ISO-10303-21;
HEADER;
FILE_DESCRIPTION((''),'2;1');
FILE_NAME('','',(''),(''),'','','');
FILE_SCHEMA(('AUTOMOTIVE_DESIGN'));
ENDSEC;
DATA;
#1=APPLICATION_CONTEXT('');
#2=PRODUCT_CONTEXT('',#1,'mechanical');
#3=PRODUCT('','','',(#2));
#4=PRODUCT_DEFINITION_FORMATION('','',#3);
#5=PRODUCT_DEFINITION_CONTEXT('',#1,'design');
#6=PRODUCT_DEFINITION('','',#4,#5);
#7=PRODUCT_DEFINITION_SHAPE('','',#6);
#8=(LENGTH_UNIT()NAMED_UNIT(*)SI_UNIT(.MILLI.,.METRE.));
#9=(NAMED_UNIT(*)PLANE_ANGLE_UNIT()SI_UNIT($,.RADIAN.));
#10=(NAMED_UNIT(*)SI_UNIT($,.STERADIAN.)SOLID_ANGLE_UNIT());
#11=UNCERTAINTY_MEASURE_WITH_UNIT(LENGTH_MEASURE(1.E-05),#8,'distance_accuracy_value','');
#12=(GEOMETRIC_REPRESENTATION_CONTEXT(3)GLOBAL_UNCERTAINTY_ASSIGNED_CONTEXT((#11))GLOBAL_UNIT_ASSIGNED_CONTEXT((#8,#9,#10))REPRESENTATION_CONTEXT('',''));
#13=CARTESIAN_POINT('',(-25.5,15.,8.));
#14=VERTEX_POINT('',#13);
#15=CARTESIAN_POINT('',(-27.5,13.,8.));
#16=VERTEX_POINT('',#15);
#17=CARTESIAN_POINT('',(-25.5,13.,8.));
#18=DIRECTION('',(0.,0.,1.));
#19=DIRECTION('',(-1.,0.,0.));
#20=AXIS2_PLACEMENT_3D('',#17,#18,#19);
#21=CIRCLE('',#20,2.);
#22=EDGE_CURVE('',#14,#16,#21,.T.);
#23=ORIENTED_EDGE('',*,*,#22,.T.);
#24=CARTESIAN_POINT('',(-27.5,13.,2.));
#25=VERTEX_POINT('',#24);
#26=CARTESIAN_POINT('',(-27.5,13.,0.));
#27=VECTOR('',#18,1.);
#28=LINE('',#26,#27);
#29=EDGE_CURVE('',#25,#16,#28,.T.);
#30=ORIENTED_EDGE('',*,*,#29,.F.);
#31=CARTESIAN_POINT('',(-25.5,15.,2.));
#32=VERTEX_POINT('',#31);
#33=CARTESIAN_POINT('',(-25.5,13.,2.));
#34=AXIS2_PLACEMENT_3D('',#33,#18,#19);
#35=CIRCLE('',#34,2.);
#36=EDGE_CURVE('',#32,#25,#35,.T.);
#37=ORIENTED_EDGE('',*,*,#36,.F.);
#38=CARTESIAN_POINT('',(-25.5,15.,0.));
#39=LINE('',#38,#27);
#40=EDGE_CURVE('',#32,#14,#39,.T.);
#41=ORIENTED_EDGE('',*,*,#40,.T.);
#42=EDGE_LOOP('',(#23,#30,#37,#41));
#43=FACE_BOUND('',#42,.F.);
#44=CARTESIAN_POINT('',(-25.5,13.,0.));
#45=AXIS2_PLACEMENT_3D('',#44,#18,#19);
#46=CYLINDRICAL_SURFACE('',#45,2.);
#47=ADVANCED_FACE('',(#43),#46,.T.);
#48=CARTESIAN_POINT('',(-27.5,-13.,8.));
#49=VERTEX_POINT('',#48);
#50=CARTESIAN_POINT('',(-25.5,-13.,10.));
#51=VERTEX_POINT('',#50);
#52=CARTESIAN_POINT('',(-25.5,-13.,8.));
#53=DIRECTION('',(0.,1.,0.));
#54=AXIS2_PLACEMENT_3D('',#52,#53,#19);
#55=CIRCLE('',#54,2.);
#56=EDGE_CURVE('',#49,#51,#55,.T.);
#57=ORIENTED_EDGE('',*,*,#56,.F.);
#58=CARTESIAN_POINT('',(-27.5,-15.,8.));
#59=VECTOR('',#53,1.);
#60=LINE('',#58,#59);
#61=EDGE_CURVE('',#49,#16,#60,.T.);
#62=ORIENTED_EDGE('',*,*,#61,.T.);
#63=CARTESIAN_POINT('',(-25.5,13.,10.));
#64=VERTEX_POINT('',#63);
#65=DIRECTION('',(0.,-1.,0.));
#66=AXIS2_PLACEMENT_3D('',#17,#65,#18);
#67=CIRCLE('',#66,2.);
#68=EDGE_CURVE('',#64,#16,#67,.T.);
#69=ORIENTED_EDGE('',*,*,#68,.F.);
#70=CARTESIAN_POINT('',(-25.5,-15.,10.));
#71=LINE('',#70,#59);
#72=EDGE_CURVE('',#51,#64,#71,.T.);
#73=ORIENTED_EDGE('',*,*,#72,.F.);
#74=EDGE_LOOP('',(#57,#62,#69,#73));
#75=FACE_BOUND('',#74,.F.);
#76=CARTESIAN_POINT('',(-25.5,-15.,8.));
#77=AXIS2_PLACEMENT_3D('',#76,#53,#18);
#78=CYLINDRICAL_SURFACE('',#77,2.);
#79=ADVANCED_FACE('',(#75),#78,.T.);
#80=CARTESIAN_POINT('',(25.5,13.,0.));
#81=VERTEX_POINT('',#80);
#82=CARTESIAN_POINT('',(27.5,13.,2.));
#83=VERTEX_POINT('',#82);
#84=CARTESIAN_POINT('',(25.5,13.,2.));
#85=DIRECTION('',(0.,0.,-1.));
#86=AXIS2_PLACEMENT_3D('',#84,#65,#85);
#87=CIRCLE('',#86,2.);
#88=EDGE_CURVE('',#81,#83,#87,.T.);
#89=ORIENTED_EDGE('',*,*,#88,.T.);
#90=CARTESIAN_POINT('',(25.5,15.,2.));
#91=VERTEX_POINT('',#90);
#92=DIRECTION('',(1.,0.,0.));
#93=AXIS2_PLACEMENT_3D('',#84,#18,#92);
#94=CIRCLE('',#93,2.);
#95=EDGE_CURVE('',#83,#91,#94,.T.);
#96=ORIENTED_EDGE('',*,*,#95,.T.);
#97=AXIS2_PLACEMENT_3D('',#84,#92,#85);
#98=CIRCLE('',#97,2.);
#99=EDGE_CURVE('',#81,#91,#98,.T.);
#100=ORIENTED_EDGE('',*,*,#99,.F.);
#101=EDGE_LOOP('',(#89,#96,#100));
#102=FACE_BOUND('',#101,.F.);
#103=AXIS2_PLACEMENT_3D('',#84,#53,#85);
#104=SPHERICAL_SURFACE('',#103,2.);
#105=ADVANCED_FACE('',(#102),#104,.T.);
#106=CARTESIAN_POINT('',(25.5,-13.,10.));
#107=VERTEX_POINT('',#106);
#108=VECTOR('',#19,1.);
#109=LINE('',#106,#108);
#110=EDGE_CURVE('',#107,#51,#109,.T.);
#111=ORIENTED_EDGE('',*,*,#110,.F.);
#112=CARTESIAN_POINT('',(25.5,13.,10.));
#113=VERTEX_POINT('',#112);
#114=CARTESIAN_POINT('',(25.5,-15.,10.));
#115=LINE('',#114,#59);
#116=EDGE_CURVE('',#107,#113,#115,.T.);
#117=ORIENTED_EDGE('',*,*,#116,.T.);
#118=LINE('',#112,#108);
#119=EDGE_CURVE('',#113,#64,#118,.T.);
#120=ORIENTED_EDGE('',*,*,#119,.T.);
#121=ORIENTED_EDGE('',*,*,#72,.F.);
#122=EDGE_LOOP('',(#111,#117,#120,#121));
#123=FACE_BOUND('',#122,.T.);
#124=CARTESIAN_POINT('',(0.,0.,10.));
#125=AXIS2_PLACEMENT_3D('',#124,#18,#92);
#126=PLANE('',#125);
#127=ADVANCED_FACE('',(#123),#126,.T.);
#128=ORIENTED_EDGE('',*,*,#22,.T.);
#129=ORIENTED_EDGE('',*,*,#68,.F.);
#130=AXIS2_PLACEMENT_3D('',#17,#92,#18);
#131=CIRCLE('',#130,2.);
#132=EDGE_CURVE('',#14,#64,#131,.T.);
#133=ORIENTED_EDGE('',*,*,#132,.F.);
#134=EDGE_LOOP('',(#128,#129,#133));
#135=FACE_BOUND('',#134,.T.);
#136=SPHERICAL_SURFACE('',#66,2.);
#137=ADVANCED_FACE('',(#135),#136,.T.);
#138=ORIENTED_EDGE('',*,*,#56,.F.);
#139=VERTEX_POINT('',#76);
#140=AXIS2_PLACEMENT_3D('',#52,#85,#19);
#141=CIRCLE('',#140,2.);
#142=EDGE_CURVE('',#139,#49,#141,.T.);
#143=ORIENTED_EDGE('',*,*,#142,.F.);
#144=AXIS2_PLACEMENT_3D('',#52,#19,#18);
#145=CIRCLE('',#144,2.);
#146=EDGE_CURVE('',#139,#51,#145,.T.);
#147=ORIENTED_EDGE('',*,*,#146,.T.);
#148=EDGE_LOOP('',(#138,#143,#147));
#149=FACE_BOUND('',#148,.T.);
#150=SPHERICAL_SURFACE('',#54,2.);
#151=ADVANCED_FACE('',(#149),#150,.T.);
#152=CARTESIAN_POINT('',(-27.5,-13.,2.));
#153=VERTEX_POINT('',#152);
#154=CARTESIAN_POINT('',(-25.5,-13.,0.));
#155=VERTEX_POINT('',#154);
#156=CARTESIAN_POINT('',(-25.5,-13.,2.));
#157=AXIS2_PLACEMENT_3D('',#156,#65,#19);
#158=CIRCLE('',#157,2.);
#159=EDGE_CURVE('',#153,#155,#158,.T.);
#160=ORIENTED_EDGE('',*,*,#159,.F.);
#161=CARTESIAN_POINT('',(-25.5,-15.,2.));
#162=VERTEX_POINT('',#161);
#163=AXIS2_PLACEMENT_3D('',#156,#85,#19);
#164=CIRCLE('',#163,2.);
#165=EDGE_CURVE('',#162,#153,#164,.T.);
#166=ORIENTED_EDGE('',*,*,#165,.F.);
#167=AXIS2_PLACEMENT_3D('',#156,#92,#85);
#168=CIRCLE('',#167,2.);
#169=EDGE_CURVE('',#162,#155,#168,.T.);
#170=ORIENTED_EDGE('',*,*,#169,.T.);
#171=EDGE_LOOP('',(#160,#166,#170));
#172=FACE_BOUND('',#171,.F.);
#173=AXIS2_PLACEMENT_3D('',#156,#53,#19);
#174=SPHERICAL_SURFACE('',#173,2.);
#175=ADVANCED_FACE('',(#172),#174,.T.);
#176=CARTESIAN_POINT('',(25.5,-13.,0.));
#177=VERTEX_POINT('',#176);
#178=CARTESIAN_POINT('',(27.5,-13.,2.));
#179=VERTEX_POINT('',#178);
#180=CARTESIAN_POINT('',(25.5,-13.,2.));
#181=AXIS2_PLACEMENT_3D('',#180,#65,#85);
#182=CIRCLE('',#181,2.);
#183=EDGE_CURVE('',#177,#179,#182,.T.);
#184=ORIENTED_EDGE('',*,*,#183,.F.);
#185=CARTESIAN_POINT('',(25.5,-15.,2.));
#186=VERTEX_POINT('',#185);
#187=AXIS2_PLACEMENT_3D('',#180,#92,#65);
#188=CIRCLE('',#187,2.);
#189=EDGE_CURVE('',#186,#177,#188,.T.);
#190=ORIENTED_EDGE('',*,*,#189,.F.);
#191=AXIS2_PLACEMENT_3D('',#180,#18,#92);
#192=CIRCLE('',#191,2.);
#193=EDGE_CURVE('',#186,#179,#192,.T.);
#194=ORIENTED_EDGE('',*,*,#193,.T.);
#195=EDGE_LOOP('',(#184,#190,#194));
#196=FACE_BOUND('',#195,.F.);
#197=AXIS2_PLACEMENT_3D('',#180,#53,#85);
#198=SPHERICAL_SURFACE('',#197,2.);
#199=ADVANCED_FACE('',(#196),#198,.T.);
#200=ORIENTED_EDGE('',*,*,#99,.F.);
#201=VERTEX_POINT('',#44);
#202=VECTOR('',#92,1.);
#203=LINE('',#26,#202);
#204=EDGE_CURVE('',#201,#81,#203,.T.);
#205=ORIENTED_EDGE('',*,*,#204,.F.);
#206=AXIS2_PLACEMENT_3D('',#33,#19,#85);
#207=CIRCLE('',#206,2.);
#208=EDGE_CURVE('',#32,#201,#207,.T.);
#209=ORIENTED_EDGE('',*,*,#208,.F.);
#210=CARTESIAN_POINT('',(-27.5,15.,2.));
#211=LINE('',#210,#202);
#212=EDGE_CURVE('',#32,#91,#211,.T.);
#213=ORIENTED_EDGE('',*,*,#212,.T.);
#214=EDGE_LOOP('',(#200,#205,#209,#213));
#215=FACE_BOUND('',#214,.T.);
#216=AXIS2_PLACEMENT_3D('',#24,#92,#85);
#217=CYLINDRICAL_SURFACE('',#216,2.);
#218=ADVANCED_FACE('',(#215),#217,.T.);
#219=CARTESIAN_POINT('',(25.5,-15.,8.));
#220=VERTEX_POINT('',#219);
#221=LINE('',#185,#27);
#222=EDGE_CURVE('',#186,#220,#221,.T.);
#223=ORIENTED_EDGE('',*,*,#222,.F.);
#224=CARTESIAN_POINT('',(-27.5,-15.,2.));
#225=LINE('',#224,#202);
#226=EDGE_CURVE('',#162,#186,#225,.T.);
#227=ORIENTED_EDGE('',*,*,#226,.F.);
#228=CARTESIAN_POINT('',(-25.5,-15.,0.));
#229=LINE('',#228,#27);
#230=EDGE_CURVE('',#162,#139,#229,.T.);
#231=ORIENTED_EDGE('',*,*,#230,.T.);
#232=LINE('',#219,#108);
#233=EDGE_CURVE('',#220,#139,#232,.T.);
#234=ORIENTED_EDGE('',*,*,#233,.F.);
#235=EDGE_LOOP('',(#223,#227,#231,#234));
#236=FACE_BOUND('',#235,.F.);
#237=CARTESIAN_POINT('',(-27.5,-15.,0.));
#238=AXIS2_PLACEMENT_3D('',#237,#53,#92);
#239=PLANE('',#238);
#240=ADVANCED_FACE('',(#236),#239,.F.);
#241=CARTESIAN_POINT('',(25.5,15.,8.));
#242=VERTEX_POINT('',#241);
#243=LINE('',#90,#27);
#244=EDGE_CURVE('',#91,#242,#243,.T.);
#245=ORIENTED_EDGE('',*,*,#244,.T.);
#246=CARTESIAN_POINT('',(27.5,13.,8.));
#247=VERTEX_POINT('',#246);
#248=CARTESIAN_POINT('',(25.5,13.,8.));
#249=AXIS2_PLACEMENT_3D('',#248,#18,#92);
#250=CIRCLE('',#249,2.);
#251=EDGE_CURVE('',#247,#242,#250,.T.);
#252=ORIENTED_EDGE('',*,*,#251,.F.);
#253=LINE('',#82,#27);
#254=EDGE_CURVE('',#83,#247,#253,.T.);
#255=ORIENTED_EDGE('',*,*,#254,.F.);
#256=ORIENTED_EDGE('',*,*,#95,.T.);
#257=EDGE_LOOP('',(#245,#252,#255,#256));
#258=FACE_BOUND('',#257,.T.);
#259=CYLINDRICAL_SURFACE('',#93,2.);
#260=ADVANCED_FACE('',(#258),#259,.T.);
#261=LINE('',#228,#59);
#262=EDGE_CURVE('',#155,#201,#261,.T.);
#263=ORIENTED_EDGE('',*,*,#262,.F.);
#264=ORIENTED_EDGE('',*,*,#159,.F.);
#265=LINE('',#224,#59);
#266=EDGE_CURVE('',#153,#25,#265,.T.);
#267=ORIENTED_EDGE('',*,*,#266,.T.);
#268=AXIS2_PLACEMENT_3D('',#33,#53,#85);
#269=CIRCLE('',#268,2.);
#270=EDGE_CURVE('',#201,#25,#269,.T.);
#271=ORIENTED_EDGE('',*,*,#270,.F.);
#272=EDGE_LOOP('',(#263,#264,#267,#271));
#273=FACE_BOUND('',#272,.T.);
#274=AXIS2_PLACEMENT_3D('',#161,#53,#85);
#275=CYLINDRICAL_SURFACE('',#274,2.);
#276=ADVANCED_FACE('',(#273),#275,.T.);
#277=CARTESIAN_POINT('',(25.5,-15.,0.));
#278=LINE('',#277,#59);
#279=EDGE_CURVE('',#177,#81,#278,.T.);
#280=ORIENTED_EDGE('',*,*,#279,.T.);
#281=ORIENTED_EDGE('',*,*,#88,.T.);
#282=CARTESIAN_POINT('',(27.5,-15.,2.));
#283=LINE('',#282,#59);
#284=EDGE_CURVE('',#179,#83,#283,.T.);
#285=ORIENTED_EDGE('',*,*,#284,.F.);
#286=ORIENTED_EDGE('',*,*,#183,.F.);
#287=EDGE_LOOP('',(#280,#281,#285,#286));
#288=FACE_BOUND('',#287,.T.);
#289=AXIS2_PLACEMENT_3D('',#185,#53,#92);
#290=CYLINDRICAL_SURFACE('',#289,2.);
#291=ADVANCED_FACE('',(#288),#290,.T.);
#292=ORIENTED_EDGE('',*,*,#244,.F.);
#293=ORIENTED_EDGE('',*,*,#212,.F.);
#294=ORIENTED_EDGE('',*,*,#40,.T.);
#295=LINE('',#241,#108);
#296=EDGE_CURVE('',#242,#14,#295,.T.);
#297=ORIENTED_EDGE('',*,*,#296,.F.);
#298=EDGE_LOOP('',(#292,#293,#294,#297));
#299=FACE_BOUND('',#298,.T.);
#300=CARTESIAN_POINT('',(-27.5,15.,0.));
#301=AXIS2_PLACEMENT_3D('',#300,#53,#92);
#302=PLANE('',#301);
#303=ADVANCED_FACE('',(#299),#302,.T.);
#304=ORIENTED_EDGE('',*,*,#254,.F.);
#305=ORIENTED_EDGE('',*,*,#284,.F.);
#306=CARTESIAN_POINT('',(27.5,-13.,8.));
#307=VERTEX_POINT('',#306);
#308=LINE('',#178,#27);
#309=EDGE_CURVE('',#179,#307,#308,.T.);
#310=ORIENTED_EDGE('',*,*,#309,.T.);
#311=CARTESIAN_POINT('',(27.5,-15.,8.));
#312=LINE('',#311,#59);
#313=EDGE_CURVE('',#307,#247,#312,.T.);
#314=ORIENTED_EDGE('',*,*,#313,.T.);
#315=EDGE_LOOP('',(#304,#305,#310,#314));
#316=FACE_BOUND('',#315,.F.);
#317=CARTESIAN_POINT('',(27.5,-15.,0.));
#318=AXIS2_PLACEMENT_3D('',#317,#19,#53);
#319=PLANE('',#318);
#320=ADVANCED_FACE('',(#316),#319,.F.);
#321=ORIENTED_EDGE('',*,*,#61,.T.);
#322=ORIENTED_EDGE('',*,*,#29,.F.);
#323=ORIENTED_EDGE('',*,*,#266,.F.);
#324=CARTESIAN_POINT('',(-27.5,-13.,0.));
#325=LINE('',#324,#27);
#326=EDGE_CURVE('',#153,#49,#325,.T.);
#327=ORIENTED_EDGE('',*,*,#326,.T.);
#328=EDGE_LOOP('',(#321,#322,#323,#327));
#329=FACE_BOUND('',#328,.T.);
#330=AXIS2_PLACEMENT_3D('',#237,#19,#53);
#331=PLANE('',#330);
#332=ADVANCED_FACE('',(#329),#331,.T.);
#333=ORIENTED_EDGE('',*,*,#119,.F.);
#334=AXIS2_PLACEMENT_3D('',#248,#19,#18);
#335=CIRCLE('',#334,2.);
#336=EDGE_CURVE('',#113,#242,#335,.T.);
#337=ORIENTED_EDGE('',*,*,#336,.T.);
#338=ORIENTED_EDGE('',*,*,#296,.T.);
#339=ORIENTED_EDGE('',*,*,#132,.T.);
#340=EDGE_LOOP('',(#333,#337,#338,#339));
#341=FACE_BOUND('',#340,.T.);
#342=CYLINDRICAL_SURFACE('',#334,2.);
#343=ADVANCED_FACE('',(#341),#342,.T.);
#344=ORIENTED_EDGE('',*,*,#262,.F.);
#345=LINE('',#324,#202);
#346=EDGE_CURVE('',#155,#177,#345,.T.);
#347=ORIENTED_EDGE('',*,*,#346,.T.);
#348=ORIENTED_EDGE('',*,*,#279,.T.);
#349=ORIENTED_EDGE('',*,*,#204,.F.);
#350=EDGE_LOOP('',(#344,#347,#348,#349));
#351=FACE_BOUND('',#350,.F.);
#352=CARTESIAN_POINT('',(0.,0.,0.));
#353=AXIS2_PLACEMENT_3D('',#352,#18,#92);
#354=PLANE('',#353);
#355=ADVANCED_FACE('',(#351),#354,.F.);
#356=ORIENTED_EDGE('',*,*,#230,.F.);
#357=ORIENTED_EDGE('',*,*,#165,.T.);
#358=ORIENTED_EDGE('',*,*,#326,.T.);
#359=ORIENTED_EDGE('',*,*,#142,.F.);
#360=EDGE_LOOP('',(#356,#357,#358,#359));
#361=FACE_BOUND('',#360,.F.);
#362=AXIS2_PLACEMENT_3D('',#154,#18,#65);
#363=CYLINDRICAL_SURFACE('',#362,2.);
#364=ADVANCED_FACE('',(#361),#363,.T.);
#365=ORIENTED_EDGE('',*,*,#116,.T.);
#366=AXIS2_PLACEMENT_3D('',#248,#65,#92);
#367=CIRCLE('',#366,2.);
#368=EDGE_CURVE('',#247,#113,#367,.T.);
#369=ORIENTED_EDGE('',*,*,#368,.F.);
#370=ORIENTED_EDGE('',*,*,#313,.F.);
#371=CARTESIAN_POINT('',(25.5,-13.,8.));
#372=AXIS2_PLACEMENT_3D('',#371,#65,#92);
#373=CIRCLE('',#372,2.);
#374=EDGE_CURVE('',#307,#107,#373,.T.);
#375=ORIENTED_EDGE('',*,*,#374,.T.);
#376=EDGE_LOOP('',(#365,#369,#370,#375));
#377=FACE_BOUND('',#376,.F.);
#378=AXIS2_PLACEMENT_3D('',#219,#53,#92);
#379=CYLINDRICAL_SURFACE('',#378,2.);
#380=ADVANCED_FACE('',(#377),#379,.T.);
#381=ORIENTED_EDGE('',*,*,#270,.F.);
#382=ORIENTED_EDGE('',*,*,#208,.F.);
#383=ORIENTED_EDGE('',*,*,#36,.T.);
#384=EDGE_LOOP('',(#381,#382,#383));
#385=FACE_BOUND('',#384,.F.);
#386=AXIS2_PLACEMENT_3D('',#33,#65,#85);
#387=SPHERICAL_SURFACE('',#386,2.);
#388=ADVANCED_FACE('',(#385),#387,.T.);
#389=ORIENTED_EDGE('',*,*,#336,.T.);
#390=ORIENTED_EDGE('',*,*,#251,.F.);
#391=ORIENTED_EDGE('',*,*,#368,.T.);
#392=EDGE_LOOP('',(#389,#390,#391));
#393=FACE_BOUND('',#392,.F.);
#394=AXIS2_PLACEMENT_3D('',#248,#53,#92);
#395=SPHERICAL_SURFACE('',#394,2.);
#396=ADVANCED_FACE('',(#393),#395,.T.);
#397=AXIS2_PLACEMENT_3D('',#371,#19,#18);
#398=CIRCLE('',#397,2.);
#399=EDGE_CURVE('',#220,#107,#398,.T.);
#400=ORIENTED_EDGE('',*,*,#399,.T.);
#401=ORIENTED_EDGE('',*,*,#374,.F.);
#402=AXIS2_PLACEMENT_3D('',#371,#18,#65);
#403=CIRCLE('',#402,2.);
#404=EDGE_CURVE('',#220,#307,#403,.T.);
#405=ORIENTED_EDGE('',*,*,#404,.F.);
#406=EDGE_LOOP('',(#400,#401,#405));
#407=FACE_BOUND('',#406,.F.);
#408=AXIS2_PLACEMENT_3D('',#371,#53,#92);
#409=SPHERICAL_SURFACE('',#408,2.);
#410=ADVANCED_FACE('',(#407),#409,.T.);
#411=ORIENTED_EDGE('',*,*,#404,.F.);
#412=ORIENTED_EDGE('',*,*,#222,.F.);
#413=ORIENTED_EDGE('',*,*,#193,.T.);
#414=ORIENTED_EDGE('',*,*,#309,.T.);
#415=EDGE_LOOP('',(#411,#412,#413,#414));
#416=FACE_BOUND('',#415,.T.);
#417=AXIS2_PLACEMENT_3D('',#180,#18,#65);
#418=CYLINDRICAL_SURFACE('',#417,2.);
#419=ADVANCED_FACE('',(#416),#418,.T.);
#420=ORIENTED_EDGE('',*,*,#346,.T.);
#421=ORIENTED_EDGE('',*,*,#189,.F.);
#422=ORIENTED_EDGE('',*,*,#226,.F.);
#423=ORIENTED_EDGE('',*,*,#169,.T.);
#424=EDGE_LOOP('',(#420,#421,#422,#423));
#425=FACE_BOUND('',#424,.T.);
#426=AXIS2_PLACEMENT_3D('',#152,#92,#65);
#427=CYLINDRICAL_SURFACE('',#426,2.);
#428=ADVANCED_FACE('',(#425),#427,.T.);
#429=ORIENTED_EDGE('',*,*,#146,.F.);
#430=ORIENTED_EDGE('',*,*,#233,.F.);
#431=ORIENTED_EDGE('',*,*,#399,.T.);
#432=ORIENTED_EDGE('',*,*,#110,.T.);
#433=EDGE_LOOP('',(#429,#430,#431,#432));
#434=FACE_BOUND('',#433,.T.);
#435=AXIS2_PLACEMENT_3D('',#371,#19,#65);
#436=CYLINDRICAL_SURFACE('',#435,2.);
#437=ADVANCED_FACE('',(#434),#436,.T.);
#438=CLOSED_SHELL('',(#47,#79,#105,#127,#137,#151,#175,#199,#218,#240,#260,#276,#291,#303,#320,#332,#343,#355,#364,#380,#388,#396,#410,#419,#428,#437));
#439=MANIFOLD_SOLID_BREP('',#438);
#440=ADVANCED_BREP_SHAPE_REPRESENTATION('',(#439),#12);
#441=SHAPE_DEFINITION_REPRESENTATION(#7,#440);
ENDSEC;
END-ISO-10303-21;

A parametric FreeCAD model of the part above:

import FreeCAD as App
import Part
import Sketcher
from FreeCAD import Vector
Q = App.Units.Quantity


def edges_at(feature, points):
    """Names of the edges that pass closest to the given points."""
    edges = feature.Shape.Edges
    near = lambda p: min(range(len(edges)), key=lambda i: edges[i].distToShape(Part.Vertex(*p))[0])
    return sorted({f"Edge{near(p) + 1}" for p in points})


def add_polygon(sketch, points):
    """Adds a closed chain of lines whose ends are joined by coincident constraints."""
    first, n = sketch.GeometryCount, len(points)
    for a, b in zip(points, points[1:] + points[:1]):
        sketch.addGeometry(Part.LineSegment(App.Vector(*a, 0), App.Vector(*b, 0)), False)
    for i in range(n):
        sketch.addConstraint(Sketcher.Constraint("Coincident", first + i, 2, first + (i + 1) % n, 1))

doc = App.newDocument("Part")
body = doc.addObject("PartDesign::Body", "Body")

# Sketch on XY plane
sketch1 = body.newObject("Sketcher::SketchObject", "Sketch")
sketch1.AttachmentSupport = (doc.getObject("XY_Plane"), [""])
sketch1.MapMode = "FlatFace"
add_polygon(sketch1, [(-27.5, 15), (-27.5, -15), (27.5, -15), (27.5, 15)])  # lines 0-3
sketch1.addConstraint([
    Sketcher.Constraint("Vertical", 0),
    Sketcher.Constraint("Horizontal", 1),
    Sketcher.Constraint("Vertical", 2),
    Sketcher.Constraint("Horizontal", 3),
    Sketcher.Constraint("Symmetric", 0, 2, 2, 2, -1, 1),
    Sketcher.Constraint("DistanceX", 1, 1, 1, 2, Q("55 mm")),
    Sketcher.Constraint("DistanceY", 0, 2, 0, 1, Q("30 mm")),
])
pad1 = body.newObject("PartDesign::Pad", "Pad")
pad1.Profile = sketch1
pad1.Length = 10
doc.recompute()

fillet = body.newObject("PartDesign::Fillet", "Fillet")
fillet.Base = (pad1, edges_at(pad1, [(27.5, 0, 0), (27.5, 0, 10)]))
fillet.Radius = 2
doc.recompute()

fillet2 = body.newObject("PartDesign::Fillet", "Fillet001")
fillet2.Base = (fillet, edges_at(fillet, [
    (-27.5, 0, 10),
    (-27.5, 0, 0),
    (-27.5, -15, 5),
    (27.5, -15, 5),
    (27.5, 15, 5),
    (26.914, 15, 0.586),
    (26.914, 15, 9.414),
    (-1, 15, 0),
    (-1, 15, 10),
    (-27.5, 15, 5),
]))
fillet2.Radius = 2

doc.recompute()
